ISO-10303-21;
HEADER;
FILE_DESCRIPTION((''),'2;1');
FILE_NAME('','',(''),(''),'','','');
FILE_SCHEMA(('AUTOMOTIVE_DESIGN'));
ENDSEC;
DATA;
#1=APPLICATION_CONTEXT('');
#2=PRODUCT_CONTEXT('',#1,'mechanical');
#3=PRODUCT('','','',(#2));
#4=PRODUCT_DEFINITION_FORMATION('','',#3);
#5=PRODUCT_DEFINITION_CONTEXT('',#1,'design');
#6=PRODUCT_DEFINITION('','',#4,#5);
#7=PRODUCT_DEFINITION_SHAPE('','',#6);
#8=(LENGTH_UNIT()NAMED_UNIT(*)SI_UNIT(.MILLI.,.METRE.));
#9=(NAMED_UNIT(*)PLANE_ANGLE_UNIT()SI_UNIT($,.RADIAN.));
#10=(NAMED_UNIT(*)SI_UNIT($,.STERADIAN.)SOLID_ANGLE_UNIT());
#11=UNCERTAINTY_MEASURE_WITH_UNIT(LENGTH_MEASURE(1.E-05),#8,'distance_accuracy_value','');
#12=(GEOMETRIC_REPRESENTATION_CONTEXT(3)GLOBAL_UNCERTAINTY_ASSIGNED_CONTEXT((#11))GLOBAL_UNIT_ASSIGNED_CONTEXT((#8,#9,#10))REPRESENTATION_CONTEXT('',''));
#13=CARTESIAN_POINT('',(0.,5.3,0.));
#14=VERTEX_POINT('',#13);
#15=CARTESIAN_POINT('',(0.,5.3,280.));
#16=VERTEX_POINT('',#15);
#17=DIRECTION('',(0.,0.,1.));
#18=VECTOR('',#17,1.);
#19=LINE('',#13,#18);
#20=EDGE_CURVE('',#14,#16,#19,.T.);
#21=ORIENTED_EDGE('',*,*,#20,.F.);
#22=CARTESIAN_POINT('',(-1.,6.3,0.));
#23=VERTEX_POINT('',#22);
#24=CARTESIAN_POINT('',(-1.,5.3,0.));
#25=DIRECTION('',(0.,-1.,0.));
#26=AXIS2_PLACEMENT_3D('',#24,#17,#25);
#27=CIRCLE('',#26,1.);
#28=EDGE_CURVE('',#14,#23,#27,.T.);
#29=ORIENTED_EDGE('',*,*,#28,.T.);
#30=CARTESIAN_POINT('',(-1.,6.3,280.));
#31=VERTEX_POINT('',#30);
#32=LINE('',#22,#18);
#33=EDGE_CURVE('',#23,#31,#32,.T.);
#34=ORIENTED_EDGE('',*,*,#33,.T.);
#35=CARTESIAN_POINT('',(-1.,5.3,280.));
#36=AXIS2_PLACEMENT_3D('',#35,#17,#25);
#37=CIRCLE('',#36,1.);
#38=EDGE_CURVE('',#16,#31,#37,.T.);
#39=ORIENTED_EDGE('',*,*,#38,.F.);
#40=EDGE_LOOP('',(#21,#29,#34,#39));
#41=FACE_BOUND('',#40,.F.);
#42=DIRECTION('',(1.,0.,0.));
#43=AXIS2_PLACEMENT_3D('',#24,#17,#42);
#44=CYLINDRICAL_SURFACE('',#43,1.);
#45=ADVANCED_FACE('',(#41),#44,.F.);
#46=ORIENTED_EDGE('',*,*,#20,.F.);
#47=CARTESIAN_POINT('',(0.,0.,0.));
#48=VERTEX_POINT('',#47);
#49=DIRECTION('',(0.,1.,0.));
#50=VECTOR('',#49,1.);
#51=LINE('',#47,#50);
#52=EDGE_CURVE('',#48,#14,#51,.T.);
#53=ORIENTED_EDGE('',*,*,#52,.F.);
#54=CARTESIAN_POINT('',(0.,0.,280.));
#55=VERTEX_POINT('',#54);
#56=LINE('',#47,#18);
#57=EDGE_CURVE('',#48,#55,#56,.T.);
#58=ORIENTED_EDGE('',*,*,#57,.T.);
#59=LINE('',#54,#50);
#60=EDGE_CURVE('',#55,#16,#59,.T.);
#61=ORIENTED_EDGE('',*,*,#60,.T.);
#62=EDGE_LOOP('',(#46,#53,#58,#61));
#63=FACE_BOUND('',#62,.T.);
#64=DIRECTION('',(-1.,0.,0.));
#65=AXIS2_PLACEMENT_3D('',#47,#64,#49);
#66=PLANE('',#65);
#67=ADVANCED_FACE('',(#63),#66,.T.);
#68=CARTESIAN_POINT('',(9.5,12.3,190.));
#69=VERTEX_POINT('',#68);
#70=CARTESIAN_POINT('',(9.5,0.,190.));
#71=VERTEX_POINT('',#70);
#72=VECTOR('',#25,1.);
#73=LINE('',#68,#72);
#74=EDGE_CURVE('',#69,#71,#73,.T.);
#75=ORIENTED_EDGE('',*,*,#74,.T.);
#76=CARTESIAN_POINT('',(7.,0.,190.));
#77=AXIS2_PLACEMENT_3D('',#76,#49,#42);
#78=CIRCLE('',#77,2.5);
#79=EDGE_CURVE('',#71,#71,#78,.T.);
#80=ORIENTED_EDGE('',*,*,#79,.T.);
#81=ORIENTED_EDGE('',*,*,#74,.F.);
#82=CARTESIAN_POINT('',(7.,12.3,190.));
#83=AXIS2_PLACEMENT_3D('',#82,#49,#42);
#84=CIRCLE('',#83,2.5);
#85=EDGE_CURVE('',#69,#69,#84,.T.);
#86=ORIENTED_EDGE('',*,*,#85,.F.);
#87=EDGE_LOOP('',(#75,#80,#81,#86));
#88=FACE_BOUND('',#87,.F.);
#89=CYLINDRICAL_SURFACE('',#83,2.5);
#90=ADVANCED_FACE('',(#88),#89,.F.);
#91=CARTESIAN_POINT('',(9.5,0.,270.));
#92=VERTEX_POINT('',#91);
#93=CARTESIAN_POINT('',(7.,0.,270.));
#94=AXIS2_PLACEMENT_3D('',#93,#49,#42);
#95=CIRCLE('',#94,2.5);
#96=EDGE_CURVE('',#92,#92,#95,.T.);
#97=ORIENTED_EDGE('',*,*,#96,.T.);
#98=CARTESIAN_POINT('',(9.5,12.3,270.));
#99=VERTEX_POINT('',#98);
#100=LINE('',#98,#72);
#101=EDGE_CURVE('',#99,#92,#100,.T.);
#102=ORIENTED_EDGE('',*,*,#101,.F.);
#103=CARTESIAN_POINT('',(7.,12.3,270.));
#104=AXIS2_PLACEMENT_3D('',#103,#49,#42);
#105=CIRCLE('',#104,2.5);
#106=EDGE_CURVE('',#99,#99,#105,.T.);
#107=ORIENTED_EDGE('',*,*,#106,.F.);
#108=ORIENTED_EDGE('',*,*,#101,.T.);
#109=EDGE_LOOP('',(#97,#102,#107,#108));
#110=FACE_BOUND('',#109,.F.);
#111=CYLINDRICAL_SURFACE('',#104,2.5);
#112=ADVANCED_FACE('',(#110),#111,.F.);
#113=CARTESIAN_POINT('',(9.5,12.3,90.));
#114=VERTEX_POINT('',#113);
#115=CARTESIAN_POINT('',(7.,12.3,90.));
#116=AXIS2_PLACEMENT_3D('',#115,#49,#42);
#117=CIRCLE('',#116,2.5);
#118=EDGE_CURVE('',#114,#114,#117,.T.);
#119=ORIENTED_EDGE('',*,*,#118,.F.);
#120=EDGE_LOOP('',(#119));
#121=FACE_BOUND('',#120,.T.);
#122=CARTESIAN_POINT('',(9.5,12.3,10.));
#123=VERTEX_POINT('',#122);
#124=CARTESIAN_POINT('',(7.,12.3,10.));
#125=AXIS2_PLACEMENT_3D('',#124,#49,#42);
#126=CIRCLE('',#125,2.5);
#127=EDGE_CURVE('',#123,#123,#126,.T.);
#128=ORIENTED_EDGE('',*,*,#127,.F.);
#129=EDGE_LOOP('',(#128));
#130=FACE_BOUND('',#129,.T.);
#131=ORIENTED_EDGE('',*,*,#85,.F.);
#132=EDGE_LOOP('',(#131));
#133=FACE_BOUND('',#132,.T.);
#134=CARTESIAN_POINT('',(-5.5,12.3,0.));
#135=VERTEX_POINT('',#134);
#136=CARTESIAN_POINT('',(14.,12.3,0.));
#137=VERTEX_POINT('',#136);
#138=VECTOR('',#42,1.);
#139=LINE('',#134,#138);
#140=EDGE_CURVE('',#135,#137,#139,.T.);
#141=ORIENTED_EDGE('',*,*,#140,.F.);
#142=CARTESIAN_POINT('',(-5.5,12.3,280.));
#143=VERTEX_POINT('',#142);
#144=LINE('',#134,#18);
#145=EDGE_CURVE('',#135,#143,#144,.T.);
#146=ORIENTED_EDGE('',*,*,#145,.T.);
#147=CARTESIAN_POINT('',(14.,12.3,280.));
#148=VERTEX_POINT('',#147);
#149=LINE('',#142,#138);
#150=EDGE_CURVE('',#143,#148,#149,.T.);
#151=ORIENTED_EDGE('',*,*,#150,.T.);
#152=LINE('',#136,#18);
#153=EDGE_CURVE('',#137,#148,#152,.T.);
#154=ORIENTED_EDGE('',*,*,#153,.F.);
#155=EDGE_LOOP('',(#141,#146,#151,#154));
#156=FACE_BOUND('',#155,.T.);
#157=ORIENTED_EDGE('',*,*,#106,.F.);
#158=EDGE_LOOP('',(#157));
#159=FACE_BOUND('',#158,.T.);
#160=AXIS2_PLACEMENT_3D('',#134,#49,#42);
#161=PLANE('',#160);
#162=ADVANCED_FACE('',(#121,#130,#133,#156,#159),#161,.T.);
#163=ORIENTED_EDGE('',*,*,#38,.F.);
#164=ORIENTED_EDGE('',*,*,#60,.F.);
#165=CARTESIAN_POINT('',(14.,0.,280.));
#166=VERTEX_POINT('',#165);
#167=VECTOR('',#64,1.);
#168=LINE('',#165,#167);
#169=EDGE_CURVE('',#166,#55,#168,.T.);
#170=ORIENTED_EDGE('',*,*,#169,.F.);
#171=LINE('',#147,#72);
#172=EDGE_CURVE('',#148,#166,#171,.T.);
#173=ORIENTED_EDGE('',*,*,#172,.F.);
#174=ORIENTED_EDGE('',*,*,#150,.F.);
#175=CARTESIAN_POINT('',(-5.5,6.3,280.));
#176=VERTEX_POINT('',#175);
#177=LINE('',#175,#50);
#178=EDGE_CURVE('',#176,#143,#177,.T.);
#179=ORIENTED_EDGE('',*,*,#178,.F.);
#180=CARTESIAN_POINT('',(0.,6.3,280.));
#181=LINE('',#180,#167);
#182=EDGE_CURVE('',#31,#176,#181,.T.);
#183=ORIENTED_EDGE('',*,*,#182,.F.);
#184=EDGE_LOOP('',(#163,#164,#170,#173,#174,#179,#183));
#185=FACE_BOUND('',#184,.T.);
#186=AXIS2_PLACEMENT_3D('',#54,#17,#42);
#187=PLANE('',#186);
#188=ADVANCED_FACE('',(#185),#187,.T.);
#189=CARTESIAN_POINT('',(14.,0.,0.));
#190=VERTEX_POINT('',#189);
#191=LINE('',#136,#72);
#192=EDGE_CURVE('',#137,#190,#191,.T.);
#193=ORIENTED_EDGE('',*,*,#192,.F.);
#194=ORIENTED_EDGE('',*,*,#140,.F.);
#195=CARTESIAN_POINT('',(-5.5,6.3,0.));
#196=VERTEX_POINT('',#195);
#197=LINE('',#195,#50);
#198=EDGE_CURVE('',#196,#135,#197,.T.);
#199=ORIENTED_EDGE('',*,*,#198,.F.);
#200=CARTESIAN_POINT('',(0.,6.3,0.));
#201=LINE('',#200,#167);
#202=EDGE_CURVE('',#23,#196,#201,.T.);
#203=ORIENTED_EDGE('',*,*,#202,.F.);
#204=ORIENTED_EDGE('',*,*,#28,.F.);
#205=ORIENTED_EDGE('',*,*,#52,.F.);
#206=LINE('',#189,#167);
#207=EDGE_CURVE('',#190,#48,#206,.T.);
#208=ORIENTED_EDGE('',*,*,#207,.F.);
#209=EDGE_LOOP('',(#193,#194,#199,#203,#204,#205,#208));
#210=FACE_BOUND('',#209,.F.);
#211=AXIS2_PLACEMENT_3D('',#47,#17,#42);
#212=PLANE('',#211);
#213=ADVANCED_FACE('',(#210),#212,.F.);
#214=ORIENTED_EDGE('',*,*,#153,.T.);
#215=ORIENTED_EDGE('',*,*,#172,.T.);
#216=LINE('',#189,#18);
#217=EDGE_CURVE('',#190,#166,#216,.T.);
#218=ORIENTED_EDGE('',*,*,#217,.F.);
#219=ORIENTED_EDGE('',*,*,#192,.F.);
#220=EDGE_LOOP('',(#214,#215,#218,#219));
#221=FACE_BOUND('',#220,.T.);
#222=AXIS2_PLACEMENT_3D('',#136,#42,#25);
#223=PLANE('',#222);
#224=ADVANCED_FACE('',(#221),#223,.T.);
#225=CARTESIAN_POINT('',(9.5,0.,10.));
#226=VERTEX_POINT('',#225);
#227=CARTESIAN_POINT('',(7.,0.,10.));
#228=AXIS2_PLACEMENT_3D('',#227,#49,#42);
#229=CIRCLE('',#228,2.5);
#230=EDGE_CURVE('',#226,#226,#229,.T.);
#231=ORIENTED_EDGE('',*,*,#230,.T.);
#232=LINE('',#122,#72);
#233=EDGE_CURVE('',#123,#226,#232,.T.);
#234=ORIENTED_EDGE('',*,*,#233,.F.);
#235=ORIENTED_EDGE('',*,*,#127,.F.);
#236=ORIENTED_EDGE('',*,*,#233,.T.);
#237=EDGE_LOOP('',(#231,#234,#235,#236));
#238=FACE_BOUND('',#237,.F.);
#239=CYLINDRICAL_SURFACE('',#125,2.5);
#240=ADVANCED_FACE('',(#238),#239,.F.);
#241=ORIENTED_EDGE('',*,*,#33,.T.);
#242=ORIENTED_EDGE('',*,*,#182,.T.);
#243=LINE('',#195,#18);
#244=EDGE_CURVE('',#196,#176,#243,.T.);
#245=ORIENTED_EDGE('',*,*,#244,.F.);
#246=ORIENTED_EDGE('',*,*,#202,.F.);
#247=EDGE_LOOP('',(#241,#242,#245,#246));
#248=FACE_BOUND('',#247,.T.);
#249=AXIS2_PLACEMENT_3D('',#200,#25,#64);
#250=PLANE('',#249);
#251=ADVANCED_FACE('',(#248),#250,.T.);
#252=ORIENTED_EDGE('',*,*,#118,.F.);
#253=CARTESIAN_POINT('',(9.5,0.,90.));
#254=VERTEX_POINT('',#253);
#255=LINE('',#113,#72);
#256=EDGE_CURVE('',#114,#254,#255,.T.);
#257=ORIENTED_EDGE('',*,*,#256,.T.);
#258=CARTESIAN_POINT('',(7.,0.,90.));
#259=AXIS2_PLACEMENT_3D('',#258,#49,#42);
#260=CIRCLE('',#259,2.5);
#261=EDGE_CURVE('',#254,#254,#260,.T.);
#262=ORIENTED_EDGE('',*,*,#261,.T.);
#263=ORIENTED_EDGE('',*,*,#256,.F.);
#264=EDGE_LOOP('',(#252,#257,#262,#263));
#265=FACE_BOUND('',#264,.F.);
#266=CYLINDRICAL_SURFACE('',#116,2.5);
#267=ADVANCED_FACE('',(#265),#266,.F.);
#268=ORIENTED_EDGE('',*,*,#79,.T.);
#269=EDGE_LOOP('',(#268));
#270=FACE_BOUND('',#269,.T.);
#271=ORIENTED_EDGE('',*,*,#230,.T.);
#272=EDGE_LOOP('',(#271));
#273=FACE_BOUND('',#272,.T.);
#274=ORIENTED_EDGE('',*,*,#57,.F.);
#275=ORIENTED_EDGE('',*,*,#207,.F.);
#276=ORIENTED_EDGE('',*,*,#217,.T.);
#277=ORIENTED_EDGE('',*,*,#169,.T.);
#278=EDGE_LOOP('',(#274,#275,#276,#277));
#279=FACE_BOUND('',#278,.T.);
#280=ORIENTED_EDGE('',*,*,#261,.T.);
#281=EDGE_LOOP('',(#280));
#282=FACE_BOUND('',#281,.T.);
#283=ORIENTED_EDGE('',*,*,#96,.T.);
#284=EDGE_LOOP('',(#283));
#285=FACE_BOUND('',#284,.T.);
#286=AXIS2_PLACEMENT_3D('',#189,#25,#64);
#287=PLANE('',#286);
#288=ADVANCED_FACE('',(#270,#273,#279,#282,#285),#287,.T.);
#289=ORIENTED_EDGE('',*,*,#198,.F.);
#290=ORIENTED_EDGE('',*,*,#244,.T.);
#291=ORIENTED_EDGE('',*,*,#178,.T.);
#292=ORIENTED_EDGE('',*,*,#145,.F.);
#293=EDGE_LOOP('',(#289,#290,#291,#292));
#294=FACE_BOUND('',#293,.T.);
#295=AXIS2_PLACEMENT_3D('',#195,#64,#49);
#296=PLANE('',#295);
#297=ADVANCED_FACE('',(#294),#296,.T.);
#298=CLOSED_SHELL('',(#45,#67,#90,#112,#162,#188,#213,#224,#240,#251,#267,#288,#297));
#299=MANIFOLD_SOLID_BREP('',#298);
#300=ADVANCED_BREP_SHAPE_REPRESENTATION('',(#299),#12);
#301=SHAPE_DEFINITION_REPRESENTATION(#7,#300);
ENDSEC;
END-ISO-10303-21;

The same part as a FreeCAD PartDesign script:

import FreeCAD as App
import Part
import Sketcher

V = App.Vector


def edges_at(feature, points):
    """Names of the edges that pass closest to the given points."""
    edges = feature.Shape.Edges
    near = lambda p: min(range(len(edges)), key=lambda i: edges[i].distToShape(Part.Vertex(*p))[0])
    return sorted({f"Edge{near(p) + 1}" for p in points})

doc = App.newDocument("Part")
body = doc.addObject("PartDesign::Body", "Body")

sketch1 = doc.addObject("Sketcher::SketchObject", "Sketch")
body.addObject(sketch1)
sketch1.AttachmentSupport = (doc.XY_Plane, [""])
sketch1.MapMode = "FlatFace"
sketch1.addGeometry([
    Part.LineSegment(V(14, 0, 0), V(14, 12.3, 0)),
    Part.LineSegment(V(14, 12.3, 0), V(-5.5, 12.3, 0)),
    Part.LineSegment(V(-5.5, 12.3, 0), V(-5.5, 6.3, 0)),
    Part.LineSegment(V(-5.5, 6.3, 0), V(0, 6.3, 0)),
    Part.LineSegment(V(0, 6.3, 0), V(0, 0, 0)),
    Part.LineSegment(V(0, 0, 0), V(14, 0, 0)),
], False)
sketch1.addConstraint([
    Sketcher.Constraint("Coincident", 0, 2, 1, 1),
    Sketcher.Constraint("Coincident", 1, 2, 2, 1),
    Sketcher.Constraint("Coincident", 2, 2, 3, 1),
    Sketcher.Constraint("Coincident", 3, 2, 4, 1),
    Sketcher.Constraint("Coincident", 4, 2, 5, 1),
    Sketcher.Constraint("Coincident", 5, 2, 0, 1),
    Sketcher.Constraint("Vertical", 0),
    Sketcher.Constraint("Horizontal", 1),
    Sketcher.Constraint("Vertical", 2),
    Sketcher.Constraint("Horizontal", 3),
    Sketcher.Constraint("Vertical", 4),
    Sketcher.Constraint("Horizontal", 5),
    Sketcher.Constraint("Coincident", 4, 2, -1, 1),
    Sketcher.Constraint("DistanceX", 5, 1, 5, 2, 14.0),
    Sketcher.Constraint("DistanceY", 2, 2, 2, 1, 6.0),
    Sketcher.Constraint("DistanceX", 3, 1, 3, 2, 5.5),
    Sketcher.Constraint("DistanceY", 4, 2, 4, 1, 6.3),
])
pad1 = doc.addObject("PartDesign::Pad", "Pad")
body.addObject(pad1)
pad1.Profile = sketch1
pad1.Length = 280

sketch2 = doc.addObject("Sketcher::SketchObject", "Sketch001")
body.addObject(sketch2)
sketch2.AttachmentSupport = (doc.XZ_Plane, [""])
sketch2.MapMode = "FlatFace"
sketch2.AttachmentOffset = App.Placement(V(0, 0, -12.3), App.Rotation())
sketch2.addGeometry([
    Part.Circle(V(7, 270, 0), V(0, 0, 1), 2.5),
    Part.Circle(V(7, 10, 0), V(0, 0, 1), 2.5),
    Part.Circle(V(7, 190, 0), V(0, 0, 1), 2.5),
    Part.Circle(V(7, 90, 0), V(0, 0, 1), 2.5),
], False)
sketch2.addConstraint([
    Sketcher.Constraint("Equal", 0, 1),
    Sketcher.Constraint("Equal", 1, 2),
    Sketcher.Constraint("Equal", 2, 3),
    Sketcher.Constraint("Vertical", 0, 3, 1, 3),
    Sketcher.Constraint("Vertical", 1, 3, 2, 3),
    Sketcher.Constraint("Vertical", 2, 3, 3, 3),
    Sketcher.Constraint("Diameter", 0, 5.0),
    Sketcher.Constraint("DistanceX", -1, 1, 0, 3, 7.0),
    Sketcher.Constraint("DistanceY", -1, 1, 1, 3, 10.0),
    Sketcher.Constraint("DistanceY", -1, 1, 3, 3, 90.0),
    Sketcher.Constraint("DistanceY", -1, 1, 0, 3, 270.0),
    Sketcher.Constraint("DistanceY", -1, 1, 2, 3, 190.0),
])
pocket1 = doc.addObject("PartDesign::Pocket", "Pocket")
body.addObject(pocket1)
pocket1.Profile = sketch2
pocket1.Type = "ThroughAll"
pocket1.Reversed = True
doc.recompute()

fillet = doc.addObject("PartDesign::Fillet", "Fillet")
body.addObject(fillet)
fillet.Base = (pocket1, edges_at(pocket1, [(0, 6.3, 140)]))
fillet.Radius = 1

doc.recompute()
